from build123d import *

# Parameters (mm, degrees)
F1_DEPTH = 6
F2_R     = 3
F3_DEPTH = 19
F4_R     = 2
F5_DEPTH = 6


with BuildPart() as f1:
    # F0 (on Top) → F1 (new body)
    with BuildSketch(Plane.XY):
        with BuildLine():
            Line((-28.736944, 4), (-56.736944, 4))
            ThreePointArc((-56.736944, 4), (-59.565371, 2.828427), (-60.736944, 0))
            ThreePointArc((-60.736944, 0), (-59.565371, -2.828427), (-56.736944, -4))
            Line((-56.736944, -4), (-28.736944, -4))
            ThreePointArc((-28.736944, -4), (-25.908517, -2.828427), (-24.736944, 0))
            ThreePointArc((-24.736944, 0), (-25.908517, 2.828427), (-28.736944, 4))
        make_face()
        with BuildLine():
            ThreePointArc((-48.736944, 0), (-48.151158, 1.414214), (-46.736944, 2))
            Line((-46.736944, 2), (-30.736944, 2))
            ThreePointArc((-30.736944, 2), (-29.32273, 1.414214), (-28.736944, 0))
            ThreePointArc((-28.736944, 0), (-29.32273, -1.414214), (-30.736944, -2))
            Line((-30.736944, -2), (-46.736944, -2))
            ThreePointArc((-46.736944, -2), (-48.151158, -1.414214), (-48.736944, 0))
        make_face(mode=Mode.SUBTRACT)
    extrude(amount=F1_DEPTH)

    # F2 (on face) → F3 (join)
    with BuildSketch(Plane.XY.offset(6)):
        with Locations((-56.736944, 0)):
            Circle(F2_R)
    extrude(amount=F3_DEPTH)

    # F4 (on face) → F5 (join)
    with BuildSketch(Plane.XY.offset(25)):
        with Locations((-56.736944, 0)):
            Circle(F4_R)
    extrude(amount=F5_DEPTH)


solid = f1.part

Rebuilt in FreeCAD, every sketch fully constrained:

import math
import FreeCAD as App
import Part
import Sketcher
Q = App.Units.Quantity

doc = App.newDocument("Part")
params = doc.addObject("Spreadsheet::Sheet", "Params")
for row, (alias, value) in enumerate([
    ("sketch1_radius", "4 mm"),
    ("sketch1_radius2", "1.999999 mm"),
    ("sketch1_width", "28 mm"),
    ("sketch1_width2", "16 mm"),
    ("pad1_length", "6 mm"),
    ("sketch2_diameter", "6 mm"),
    ("pad2_length", "19 mm"),
    ("sketch3_diameter", "4 mm"),
    ("pad3_length", "6 mm"),
], start=1):
    params.set(f"A{row}", alias)
    params.set(f"B{row}", "=" + value)
    params.setAlias(f"B{row}", alias)

body = doc.addObject("PartDesign::Body", "Body")

# Sketch on XY plane
sketch1 = body.newObject("Sketcher::SketchObject", "Sketch")
sketch1.AttachmentSupport = (doc.getObject("XY_Plane"), [""])
sketch1.MapMode = "FlatFace"
sketch1.addGeometry(Part.LineSegment(App.Vector(-28.7, 4, 0), App.Vector(-56.7, 4, 0)), False)
sketch1.addGeometry(Part.ArcOfCircle(Part.Circle(App.Vector(-56.7, 0, 0), App.Vector(0, 0, 1), 4), math.radians(90), math.radians(180)), False)
sketch1.addGeometry(Part.ArcOfCircle(Part.Circle(App.Vector(-56.7, 0, 0), App.Vector(0, 0, 1), 4), math.radians(-180), math.radians(-90)), False)
sketch1.addGeometry(Part.LineSegment(App.Vector(-56.7, -4, 0), App.Vector(-28.7, -4, 0)), False)
sketch1.addGeometry(Part.ArcOfCircle(Part.Circle(App.Vector(-28.7, 0, 0), App.Vector(0, 0, 1), 4), math.radians(-90), math.radians(0)), False)
sketch1.addGeometry(Part.ArcOfCircle(Part.Circle(App.Vector(-28.7, 0, 0), App.Vector(0, 0, 1), 4), math.radians(0), math.radians(90)), False)
sketch1.addGeometry(Part.ArcOfCircle(Part.Circle(App.Vector(-46.7, 0, 0), App.Vector(0, 0, 1), 2), math.radians(180), math.radians(270)), False)
sketch1.addGeometry(Part.ArcOfCircle(Part.Circle(App.Vector(-46.7, 0, 0), App.Vector(0, 0, 1), 2), math.radians(90), math.radians(180)), False)
sketch1.addGeometry(Part.LineSegment(App.Vector(-46.7, 2, 0), App.Vector(-30.7, 2, 0)), False)
sketch1.addGeometry(Part.ArcOfCircle(Part.Circle(App.Vector(-30.7, 0, 0), App.Vector(0, 0, 1), 2), math.radians(0), math.radians(90)), False)
sketch1.addGeometry(Part.ArcOfCircle(Part.Circle(App.Vector(-30.7, 0, 0), App.Vector(0, 0, 1), 2), math.radians(-90), math.radians(0)), False)
sketch1.addGeometry(Part.LineSegment(App.Vector(-30.7, -2, 0), App.Vector(-46.7, -2, 0)), False)
sketch1.addConstraint(Sketcher.Constraint("Tangent", 0, 2, 1, 1))
sketch1.addConstraint(Sketcher.Constraint("Tangent", 1, 2, 2, 1))
sketch1.addConstraint(Sketcher.Constraint("Tangent", 2, 2, 3, 1))
sketch1.addConstraint(Sketcher.Constraint("Tangent", 3, 2, 4, 1))
sketch1.addConstraint(Sketcher.Constraint("Tangent", 4, 2, 5, 1))
sketch1.addConstraint(Sketcher.Constraint("Tangent", 5, 2, 0, 1))
sketch1.addConstraint(Sketcher.Constraint("Tangent", 6, 1, 7, 2))
sketch1.addConstraint(Sketcher.Constraint("Tangent", 7, 1, 8, 1))
sketch1.addConstraint(Sketcher.Constraint("Tangent", 8, 2, 9, 2))
sketch1.addConstraint(Sketcher.Constraint("Tangent", 9, 1, 10, 2))
sketch1.addConstraint(Sketcher.Constraint("Tangent", 10, 1, 11, 1))
sketch1.addConstraint(Sketcher.Constraint("Tangent", 11, 2, 6, 2))
sketch1.addConstraint(Sketcher.Constraint("Horizontal", 0))
sketch1.addConstraint(Sketcher.Constraint("Horizontal", 3))
sketch1.addConstraint(Sketcher.Constraint("Horizontal", 8))
sketch1.addConstraint(Sketcher.Constraint("Horizontal", 11))
sketch1.addConstraint(Sketcher.Constraint("Coincident", 9, 1, 4, 3))
sketch1.addConstraint(Sketcher.Constraint("Equal", 1, 2))
sketch1.addConstraint(Sketcher.Constraint("Equal", 2, 4))
sketch1.addConstraint(Sketcher.Constraint("Equal", 6, 7))
sketch1.addConstraint(Sketcher.Constraint("Equal", 7, 9))
sketch1.addConstraint(Sketcher.Constraint("PointOnObject", 1, 3, -1))
sketch1.addConstraint(Sketcher.Constraint("PointOnObject", 6, 3, -1))
sketch1.addConstraint(Sketcher.Constraint("PointOnObject", 1, 2, -1))
sketch1.addConstraint(Sketcher.Constraint("PointOnObject", 4, 2, -1))
sketch1.addConstraint(Sketcher.Constraint("PointOnObject", 6, 1, -1))
sketch1.addConstraint(Sketcher.Constraint("Radius", 1, Q("4 mm")))
sketch1.addConstraint(Sketcher.Constraint("Radius", 6, Q("1.999999 mm")))
sketch1.addConstraint(Sketcher.Constraint("DistanceX", 0, 2, 0, 1, Q("28 mm")))
sketch1.addConstraint(Sketcher.Constraint("DistanceX", 8, 1, 8, 2, Q("16 mm")))
sketch1.addConstraint(Sketcher.Constraint("DistanceX", 1, 3, -1, 1, Q("56.736944 mm")))
sketch1.setExpression("Constraints[26]", "Params.sketch1_radius")
sketch1.setExpression("Constraints[27]", "Params.sketch1_radius2")
sketch1.setExpression("Constraints[28]", "Params.sketch1_width")
sketch1.setExpression("Constraints[29]", "Params.sketch1_width2")
pad1 = body.newObject("PartDesign::Pad", "Pad")
pad1.Profile = sketch1
pad1.setExpression("Length", "Params.pad1_length")

# Sketch on XY plane
sketch2 = body.newObject("Sketcher::SketchObject", "Sketch001")
sketch2.AttachmentSupport = (doc.getObject("XY_Plane"), [""])
sketch2.MapMode = "FlatFace"
sketch2.AttachmentOffset = App.Placement(App.Vector(0, 0, 6), App.Rotation())
sketch2.addGeometry(Part.Circle(App.Vector(-56.7, 0, 0), App.Vector(0, 0, 1), 3), False)
sketch2.addConstraint(Sketcher.Constraint("PointOnObject", 0, 3, -1))
sketch2.addConstraint(Sketcher.Constraint("Diameter", 0, Q("6 mm")))
sketch2.addConstraint(Sketcher.Constraint("DistanceX", 0, 3, -1, 1, Q("56.736944 mm")))
sketch2.setExpression("Constraints[1]", "Params.sketch2_diameter")
pad2 = body.newObject("PartDesign::Pad", "Pad001")
pad2.Profile = sketch2
pad2.setExpression("Length", "Params.pad2_length")

# Sketch on XY plane
sketch3 = body.newObject("Sketcher::SketchObject", "Sketch002")
sketch3.AttachmentSupport = (doc.getObject("XY_Plane"), [""])
sketch3.MapMode = "FlatFace"
sketch3.AttachmentOffset = App.Placement(App.Vector(0, 0, 25), App.Rotation())
sketch3.addGeometry(Part.Circle(App.Vector(-56.7, 0, 0), App.Vector(0, 0, 1), 2), False)
sketch3.addConstraint(Sketcher.Constraint("PointOnObject", 0, 3, -1))
sketch3.addConstraint(Sketcher.Constraint("Diameter", 0, Q("4 mm")))
sketch3.addConstraint(Sketcher.Constraint("DistanceX", 0, 3, -1, 1, Q("56.736944 mm")))
sketch3.setExpression("Constraints[1]", "Params.sketch3_diameter")
pad3 = body.newObject("PartDesign::Pad", "Pad002")
pad3.Profile = sketch3
pad3.setExpression("Length", "Params.pad3_length")

doc.recompute()
